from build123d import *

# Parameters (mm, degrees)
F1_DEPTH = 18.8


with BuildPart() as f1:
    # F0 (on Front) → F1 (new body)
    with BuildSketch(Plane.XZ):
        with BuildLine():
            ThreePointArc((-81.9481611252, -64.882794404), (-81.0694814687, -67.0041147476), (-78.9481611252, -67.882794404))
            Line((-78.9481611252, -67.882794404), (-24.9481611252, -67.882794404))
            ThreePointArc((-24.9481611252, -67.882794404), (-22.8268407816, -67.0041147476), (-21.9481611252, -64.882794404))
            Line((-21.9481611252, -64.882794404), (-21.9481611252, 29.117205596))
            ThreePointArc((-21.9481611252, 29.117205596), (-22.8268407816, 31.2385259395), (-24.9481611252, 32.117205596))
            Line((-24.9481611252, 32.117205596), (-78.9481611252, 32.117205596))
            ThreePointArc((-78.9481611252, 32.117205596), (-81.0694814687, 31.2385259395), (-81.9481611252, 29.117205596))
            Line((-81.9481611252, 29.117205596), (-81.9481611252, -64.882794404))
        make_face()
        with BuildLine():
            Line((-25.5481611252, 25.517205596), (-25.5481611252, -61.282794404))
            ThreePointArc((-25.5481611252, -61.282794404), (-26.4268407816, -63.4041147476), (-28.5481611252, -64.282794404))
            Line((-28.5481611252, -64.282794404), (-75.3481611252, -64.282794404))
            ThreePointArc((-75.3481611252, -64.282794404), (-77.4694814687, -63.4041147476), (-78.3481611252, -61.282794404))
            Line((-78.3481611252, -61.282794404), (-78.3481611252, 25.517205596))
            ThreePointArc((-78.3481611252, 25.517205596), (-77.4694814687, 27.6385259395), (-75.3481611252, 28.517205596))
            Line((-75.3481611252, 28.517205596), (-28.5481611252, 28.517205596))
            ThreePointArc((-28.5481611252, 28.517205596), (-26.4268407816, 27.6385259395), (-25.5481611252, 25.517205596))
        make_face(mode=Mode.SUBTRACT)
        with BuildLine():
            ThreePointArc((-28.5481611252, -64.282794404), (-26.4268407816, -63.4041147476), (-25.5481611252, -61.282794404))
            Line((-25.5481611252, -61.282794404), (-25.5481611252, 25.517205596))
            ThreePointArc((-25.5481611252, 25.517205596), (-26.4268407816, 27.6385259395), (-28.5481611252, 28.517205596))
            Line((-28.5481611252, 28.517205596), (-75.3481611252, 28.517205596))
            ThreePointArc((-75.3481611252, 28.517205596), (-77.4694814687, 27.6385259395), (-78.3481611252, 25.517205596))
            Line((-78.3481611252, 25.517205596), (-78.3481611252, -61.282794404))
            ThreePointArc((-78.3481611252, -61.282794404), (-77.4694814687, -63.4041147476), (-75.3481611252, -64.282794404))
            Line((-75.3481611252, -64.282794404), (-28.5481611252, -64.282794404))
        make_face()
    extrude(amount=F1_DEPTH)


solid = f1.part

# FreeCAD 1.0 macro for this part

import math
import FreeCAD as App
import Part
import Sketcher

V = App.Vector

doc = App.newDocument("Part")
body = doc.addObject("PartDesign::Body", "Body")

# Sketch on XZ plane
sketch1 = body.newObject("Sketcher::SketchObject", "Sketch")
sketch1.AttachmentSupport = (doc.getObject("XZ_Plane"), [""])
sketch1.MapMode = "FlatFace"
sketch1.addGeometry([
    Part.ArcOfCircle(Part.Circle(V(-78.9, -64.9, 0), V(0, 0, 1), 3), math.radians(180), math.radians(270)),  # 0
    Part.LineSegment(V(-78.9, -67.9, 0), V(-24.9, -67.9, 0)),  # 1
    Part.ArcOfCircle(Part.Circle(V(-24.9, -64.9, 0), V(0, 0, 1), 3), math.radians(-90), math.radians(0)),  # 2
    Part.LineSegment(V(-21.9, -64.9, 0), V(-21.9, 29.1, 0)),  # 3
    Part.ArcOfCircle(Part.Circle(V(-24.9, 29.1, 0), V(0, 0, 1), 3), math.radians(0), math.radians(90)),  # 4
    Part.LineSegment(V(-24.9, 32.1, 0), V(-78.9, 32.1, 0)),  # 5
    Part.ArcOfCircle(Part.Circle(V(-78.9, 29.1, 0), V(0, 0, 1), 3), math.radians(90), math.radians(180)),  # 6
    Part.LineSegment(V(-81.9, 29.1, 0), V(-81.9, -64.9, 0)),  # 7
], False)
sketch1.addConstraint([
    Sketcher.Constraint("Tangent", 0, 2, 1, 1),
    Sketcher.Constraint("Tangent", 1, 2, 2, 1),
    Sketcher.Constraint("Tangent", 2, 2, 3, 1),
    Sketcher.Constraint("Tangent", 3, 2, 4, 1),
    Sketcher.Constraint("Tangent", 4, 2, 5, 1),
    Sketcher.Constraint("Tangent", 5, 2, 6, 1),
    Sketcher.Constraint("Tangent", 6, 2, 7, 1),
    Sketcher.Constraint("Tangent", 7, 2, 0, 1),
    Sketcher.Constraint("Horizontal", 1),
    Sketcher.Constraint("Vertical", 3),
    Sketcher.Constraint("Horizontal", 5),
    Sketcher.Constraint("Vertical", 7),
    Sketcher.Constraint("Equal", 0, 2),
    Sketcher.Constraint("Equal", 2, 4),
    Sketcher.Constraint("Equal", 4, 6),
    Sketcher.Constraint("Radius", 0, 3.0),
    Sketcher.Constraint("DistanceX", 1, 1, 1, 2, 54.0),
    Sketcher.Constraint("DistanceY", 3, 1, 3, 2, 94.0),
    Sketcher.Constraint("DistanceX", 0, 3, -1, 1, 78.948161),
    Sketcher.Constraint("DistanceY", 0, 3, -1, 1, 64.882794),
])
pad1 = body.newObject("PartDesign::Pad", "Pad")
pad1.Profile = sketch1
pad1.Length = 18.8

doc.recompute()
